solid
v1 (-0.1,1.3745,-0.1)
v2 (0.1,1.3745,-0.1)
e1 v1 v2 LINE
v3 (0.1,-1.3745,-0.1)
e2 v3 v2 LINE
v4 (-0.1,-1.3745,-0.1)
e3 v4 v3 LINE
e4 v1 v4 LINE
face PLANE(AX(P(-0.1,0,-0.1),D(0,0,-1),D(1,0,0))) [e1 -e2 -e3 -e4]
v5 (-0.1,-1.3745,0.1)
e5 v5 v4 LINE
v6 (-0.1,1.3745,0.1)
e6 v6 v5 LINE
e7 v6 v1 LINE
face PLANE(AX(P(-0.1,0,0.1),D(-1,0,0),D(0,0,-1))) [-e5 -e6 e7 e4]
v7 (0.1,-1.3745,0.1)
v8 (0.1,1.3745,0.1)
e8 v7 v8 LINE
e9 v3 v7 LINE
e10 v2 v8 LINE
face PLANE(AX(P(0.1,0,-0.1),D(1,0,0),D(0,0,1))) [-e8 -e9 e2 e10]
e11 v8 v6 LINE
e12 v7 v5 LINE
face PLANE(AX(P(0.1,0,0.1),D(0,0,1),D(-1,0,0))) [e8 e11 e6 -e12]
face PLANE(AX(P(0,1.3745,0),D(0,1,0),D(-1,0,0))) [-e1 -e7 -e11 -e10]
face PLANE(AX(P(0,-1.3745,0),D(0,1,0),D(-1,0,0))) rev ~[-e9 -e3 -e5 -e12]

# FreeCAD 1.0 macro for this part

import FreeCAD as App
import Part
import Sketcher
from FreeCAD import Vector


def add_polygon(sketch, points):
    """Adds a closed chain of lines whose ends are joined by coincident constraints."""
    first, n = sketch.GeometryCount, len(points)
    for a, b in zip(points, points[1:] + points[:1]):
        sketch.addGeometry(Part.LineSegment(App.Vector(*a, 0), App.Vector(*b, 0)), False)
    for i in range(n):
        sketch.addConstraint(Sketcher.Constraint("Coincident", first + i, 2, first + (i + 1) % n, 1))

doc = App.newDocument("Part")
body = doc.addObject("PartDesign::Body", "Body")

sketch1 = body.newObject("Sketcher::SketchObject", "Sketch")
sketch1.AttachmentSupport = (doc.getObject("XZ_Plane"), [""])
sketch1.MapMode = "FlatFace"
add_polygon(sketch1, [(-0.1, 0.1), (0.1, 0.1), (0.1, -0.1), (-0.1, -0.1)])
sketch1.addConstraint([
    Sketcher.Constraint("Horizontal", 0),
    Sketcher.Constraint("Vertical", 1),
    Sketcher.Constraint("Horizontal", 2),
    Sketcher.Constraint("Vertical", 3),
    Sketcher.Constraint("Symmetric", 0, 2, 2, 2, -1, 1),
    Sketcher.Constraint("Equal", 2, 1),
    Sketcher.Constraint("DistanceX", 0, 1, 0, 2, 0.2),
])
pad1 = body.newObject("PartDesign::Pad", "Pad")
pad1.Profile = sketch1
pad1.Length = 2.749
pad1.Midplane = True

doc.recompute()
